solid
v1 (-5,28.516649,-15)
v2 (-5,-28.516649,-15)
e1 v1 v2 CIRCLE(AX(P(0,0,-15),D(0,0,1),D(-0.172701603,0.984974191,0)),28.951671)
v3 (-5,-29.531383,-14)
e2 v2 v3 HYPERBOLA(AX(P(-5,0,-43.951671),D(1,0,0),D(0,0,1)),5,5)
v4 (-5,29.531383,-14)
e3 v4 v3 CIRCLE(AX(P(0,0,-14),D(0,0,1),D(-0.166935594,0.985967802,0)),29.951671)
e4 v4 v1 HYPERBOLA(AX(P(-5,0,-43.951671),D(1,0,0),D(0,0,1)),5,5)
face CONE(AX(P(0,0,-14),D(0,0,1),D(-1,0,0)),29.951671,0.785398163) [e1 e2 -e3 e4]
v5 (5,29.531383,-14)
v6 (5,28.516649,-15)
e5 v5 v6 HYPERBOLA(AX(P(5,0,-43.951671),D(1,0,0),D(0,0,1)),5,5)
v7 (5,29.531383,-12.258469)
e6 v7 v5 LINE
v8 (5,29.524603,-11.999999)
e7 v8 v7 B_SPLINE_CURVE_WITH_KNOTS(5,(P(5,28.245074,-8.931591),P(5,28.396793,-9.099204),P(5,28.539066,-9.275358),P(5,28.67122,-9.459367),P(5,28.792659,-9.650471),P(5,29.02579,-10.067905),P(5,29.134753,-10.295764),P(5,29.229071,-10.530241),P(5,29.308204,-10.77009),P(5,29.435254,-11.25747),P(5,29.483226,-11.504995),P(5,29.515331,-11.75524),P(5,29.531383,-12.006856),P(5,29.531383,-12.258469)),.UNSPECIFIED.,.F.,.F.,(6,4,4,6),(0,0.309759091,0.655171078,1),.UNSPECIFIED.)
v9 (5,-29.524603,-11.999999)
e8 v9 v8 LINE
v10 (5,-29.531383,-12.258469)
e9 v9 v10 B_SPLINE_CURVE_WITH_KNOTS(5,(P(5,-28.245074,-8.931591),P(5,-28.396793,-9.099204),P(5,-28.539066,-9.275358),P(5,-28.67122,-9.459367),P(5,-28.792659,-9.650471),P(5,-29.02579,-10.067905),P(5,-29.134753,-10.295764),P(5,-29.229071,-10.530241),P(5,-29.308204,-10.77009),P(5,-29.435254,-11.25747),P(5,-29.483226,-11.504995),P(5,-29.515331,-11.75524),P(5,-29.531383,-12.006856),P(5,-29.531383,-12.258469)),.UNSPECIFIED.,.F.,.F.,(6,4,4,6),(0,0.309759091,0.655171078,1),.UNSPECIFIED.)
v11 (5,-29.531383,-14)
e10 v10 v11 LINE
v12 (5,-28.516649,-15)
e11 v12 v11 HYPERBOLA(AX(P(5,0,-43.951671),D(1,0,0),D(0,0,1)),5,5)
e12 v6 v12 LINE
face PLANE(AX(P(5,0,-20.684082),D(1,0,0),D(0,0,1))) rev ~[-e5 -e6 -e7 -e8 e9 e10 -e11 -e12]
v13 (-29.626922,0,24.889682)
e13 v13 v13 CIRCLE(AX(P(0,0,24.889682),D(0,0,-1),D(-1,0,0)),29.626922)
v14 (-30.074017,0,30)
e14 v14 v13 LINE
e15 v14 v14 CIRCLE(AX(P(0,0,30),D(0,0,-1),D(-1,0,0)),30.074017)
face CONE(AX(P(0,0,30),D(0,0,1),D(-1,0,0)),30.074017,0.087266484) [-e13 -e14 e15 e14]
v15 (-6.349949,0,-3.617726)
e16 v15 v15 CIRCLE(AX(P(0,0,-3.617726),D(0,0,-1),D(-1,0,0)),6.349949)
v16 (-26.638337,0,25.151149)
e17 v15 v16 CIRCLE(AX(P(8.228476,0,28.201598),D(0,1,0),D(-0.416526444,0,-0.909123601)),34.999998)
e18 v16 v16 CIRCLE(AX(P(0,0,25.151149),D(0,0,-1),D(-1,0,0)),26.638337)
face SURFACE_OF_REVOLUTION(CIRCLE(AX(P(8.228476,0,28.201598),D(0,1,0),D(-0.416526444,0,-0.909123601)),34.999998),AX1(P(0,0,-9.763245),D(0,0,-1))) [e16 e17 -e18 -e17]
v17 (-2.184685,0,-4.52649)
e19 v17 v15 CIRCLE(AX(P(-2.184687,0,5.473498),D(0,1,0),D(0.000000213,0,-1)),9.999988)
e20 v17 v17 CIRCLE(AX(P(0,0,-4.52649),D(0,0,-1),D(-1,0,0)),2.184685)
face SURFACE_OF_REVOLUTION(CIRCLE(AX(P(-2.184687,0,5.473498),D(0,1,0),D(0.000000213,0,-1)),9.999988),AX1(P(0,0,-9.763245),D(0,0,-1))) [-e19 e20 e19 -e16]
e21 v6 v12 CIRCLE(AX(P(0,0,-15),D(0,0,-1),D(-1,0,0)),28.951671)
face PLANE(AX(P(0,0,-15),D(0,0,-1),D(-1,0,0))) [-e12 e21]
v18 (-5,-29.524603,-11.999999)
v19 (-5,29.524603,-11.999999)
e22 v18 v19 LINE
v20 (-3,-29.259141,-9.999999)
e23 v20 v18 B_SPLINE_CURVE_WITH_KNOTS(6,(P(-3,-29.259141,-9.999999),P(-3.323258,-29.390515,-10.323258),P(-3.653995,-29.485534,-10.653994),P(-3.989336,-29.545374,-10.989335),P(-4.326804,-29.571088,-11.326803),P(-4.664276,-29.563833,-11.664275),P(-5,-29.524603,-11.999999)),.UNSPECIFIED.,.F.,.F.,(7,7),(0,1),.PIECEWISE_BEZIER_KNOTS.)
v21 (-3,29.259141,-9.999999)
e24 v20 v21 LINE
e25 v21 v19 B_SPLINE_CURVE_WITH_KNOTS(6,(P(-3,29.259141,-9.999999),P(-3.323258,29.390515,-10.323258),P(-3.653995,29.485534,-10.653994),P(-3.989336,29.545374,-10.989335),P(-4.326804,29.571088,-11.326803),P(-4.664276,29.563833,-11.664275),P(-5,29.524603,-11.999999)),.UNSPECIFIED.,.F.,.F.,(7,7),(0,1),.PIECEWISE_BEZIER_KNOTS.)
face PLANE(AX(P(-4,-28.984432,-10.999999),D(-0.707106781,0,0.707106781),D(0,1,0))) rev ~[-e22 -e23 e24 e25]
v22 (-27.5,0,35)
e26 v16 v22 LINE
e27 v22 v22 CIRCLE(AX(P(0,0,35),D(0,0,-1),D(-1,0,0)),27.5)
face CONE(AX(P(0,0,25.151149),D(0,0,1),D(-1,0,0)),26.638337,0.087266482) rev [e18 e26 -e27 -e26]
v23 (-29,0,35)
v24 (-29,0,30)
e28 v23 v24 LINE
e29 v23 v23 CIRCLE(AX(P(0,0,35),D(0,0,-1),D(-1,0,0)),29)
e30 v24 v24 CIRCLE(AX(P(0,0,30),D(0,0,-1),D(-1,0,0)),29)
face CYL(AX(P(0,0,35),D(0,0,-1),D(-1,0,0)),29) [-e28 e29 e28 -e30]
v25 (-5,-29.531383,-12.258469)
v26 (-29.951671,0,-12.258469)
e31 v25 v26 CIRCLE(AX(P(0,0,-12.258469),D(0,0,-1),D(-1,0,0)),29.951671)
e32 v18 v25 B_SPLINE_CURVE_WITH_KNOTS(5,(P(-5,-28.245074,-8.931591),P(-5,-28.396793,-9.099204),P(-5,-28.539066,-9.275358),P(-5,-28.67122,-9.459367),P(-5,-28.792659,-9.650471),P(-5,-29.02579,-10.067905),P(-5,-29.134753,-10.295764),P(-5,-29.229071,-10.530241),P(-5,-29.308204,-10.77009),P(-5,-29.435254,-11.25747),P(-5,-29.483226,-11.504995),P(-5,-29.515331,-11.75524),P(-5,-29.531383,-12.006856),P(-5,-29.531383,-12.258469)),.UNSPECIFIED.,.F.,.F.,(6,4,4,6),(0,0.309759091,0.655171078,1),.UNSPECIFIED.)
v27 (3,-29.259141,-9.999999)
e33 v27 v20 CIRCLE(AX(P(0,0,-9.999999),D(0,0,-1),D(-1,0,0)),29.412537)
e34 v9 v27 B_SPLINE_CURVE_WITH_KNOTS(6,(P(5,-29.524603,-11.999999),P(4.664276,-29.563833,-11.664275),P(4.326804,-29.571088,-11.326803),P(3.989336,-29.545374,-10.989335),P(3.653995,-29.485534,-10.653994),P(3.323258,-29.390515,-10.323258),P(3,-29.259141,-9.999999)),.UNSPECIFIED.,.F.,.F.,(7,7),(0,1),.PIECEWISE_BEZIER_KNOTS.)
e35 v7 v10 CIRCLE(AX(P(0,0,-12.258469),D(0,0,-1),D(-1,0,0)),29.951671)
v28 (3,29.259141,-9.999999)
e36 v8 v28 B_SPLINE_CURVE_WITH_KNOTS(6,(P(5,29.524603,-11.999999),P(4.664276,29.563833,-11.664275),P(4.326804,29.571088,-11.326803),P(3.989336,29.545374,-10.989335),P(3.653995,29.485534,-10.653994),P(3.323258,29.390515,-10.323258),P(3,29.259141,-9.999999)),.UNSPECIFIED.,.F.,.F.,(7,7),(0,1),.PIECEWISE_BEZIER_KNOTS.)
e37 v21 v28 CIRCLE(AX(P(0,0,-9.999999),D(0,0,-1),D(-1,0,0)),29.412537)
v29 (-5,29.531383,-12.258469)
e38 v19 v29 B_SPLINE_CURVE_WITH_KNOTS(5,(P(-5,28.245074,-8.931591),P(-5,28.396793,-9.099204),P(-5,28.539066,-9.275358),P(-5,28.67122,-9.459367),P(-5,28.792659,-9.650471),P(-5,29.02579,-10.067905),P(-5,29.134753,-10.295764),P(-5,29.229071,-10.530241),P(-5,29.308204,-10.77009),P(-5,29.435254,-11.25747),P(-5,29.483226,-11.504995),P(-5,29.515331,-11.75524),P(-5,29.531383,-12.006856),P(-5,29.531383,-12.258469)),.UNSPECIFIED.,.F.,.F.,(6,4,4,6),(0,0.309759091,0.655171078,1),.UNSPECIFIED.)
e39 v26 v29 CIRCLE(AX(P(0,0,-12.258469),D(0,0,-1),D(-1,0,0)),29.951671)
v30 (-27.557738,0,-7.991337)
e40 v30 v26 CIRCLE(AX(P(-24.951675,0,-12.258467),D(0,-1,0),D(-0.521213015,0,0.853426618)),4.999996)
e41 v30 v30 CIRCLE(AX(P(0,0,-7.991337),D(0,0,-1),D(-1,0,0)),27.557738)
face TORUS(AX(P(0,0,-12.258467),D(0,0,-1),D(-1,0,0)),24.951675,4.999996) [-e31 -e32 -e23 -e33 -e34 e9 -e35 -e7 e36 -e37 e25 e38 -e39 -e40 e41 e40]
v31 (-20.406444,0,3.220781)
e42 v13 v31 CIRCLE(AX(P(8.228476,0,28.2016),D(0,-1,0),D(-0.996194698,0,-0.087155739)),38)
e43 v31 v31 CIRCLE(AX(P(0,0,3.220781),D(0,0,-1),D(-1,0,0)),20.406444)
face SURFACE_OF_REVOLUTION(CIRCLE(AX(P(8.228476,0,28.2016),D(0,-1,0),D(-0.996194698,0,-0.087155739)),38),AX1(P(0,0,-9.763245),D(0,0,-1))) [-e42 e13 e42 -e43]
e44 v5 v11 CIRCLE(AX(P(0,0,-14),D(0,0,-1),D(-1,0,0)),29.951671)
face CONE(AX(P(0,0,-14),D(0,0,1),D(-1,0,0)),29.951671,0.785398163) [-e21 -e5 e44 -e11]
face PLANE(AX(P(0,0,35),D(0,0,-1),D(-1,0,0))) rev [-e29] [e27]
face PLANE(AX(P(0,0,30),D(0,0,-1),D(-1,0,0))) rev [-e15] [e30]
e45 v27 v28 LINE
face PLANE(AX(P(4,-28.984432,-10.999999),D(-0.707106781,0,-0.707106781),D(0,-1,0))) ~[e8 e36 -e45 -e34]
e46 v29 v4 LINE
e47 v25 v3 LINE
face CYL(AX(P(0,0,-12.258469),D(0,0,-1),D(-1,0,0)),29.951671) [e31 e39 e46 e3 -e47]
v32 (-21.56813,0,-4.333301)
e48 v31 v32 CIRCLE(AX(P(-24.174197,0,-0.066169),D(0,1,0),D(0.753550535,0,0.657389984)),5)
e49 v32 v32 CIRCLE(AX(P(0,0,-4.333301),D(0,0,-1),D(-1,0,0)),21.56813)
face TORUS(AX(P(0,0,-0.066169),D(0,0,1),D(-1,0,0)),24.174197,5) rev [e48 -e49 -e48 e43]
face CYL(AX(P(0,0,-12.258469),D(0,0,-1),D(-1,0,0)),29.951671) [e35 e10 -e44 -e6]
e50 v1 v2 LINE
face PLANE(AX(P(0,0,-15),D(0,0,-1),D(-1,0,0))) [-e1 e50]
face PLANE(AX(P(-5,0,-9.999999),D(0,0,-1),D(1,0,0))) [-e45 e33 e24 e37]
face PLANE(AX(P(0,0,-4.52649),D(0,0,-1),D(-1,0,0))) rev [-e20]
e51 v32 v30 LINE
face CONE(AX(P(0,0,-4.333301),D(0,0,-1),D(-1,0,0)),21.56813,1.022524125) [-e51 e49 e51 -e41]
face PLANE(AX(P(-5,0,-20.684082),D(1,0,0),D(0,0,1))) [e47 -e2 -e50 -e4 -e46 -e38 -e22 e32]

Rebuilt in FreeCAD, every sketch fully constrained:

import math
import FreeCAD as App
import Part
import Sketcher
Q = App.Units.Quantity


def edges_at(feature, points):
    """Names of the edges that pass closest to the given points."""
    edges = feature.Shape.Edges
    near = lambda p: min(range(len(edges)), key=lambda i: edges[i].distToShape(Part.Vertex(*p))[0])
    return sorted({f"Edge{near(p) + 1}" for p in points})


def add_polygon(sketch, points):
    """Adds a closed chain of lines whose ends are joined by coincident constraints."""
    first, n = sketch.GeometryCount, len(points)
    for a, b in zip(points, points[1:] + points[:1]):
        sketch.addGeometry(Part.LineSegment(App.Vector(*a, 0), App.Vector(*b, 0)), False)
    for i in range(n):
        sketch.addConstraint(Sketcher.Constraint("Coincident", first + i, 2, first + (i + 1) % n, 1))

doc = App.newDocument("Part")
params = doc.addObject("Spreadsheet::Sheet", "Params")
for row, (alias, value) in enumerate([
    ("sketch1_radius", "34.999998 mm"),
    ("sketch1_radius2", "38 mm"),
    ("sketch1_radius3", "5 mm"),
    ("sketch1_height", "5 mm"),
    ("sketch1_width", "1.5 mm"),
    ("revolution_angle", "360 deg"),
    ("sketch2_width", "10 mm"),
    ("pocket1_length", "81 mm"),
    ("chamfer_size", "2 mm"),
], start=1):
    params.set(f"A{row}", alias)
    params.set(f"B{row}", "=" + value)
    params.setAlias(f"B{row}", alias)

body = doc.addObject("PartDesign::Body", "Body")

sketch1 = doc.addObject("Sketcher::SketchObject", "Sketch")
body.addObject(sketch1)
sketch1.AttachmentSupport = (doc.XZ_Plane, [""])
sketch1.MapMode = "FlatFace"
sketch1.addGeometry([
    Part.ArcOfCircle(Part.Circle(App.Vector(8.228476, 28.201598, 0), App.Vector(0, 0, 1), 34.999998), math.radians(-175.000002), math.radians(-114.615481)),
    Part.LineSegment(App.Vector(-26.638337, 25.151149, 0), App.Vector(-27.5, 35, 0)),
    Part.LineSegment(App.Vector(-27.5, 35, 0), App.Vector(-29, 35, 0)),
    Part.LineSegment(App.Vector(-29, 35, 0), App.Vector(-29, 30, 0)),
    Part.LineSegment(App.Vector(-29, 30, 0), App.Vector(-30.074017, 30, 0)),
    Part.LineSegment(App.Vector(-30.074017, 30, 0), App.Vector(-29.626922, 24.889682, 0)),
    Part.ArcOfCircle(Part.Circle(App.Vector(8.228476, 28.2016, 0), App.Vector(0, 0, 1), 38), math.radians(-175), math.radians(-138.89888)),
    Part.ArcOfCircle(Part.Circle(App.Vector(-24.174197, -0.066169, 0), App.Vector(0, 0, 1), 5), math.radians(-58.586325), math.radians(41.101121)),
    Part.LineSegment(App.Vector(-21.56813, -4.333301, 0), App.Vector(-27.557738, -7.991337, 0)),
    Part.ArcOfCircle(Part.Circle(App.Vector(-24.951675, -12.258467, 0), App.Vector(0, 0, 1), 4.999996), math.radians(121.413653), math.radians(180.000027)),
    Part.LineSegment(App.Vector(-29.951671, -12.258469, 0), App.Vector(-29.951671, -14, 0)),
    Part.LineSegment(App.Vector(-29.951671, -14, 0), App.Vector(-28.951671, -15, 0)),
    Part.LineSegment(App.Vector(-28.951671, -15, 0), App.Vector(0, -15, 0)),
    Part.LineSegment(App.Vector(0, -15, 0), App.Vector(0, -4.52649, 0)),
    Part.LineSegment(App.Vector(0, -4.52649, 0), App.Vector(-2.184685, -4.52649, 0)),
    Part.ArcOfCircle(Part.Circle(App.Vector(-2.184687, 5.473498, 0), App.Vector(0, 0, 1), 9.999988), math.radians(-114.615496), math.radians(-89.999988)),
], False)
sketch1.addConstraint([
    Sketcher.Constraint("Tangent", 0, 1, 1, 1),
    Sketcher.Constraint("Coincident", 1, 2, 2, 1),
    Sketcher.Constraint("Coincident", 2, 2, 3, 1),
    Sketcher.Constraint("Coincident", 3, 2, 4, 1),
    Sketcher.Constraint("Coincident", 4, 2, 5, 1),
    Sketcher.Constraint("Tangent", 5, 2, 6, 1),
    Sketcher.Constraint("Tangent", 6, 2, 7, 2),
    Sketcher.Constraint("Tangent", 7, 1, 8, 1),
    Sketcher.Constraint("Tangent", 8, 2, 9, 1),
    Sketcher.Constraint("Tangent", 9, 2, 10, 1),
    Sketcher.Constraint("Coincident", 10, 2, 11, 1),
    Sketcher.Constraint("Coincident", 11, 2, 12, 1),
    Sketcher.Constraint("Coincident", 12, 2, 13, 1),
    Sketcher.Constraint("Coincident", 13, 2, 14, 1),
    Sketcher.Constraint("Tangent", 14, 2, 15, 2),
    Sketcher.Constraint("Tangent", 15, 1, 0, 2),
    Sketcher.Constraint("Horizontal", 2),
    Sketcher.Constraint("Vertical", 3),
    Sketcher.Constraint("Horizontal", 4),
    Sketcher.Constraint("Vertical", 10),
    Sketcher.Constraint("Horizontal", 12),
    Sketcher.Constraint("Vertical", 13),
    Sketcher.Constraint("Horizontal", 14),
    Sketcher.Constraint("Coincident", 6, 3, 0, 3),
    Sketcher.Constraint("PointOnObject", 12, 2, -2),
    Sketcher.Constraint("Parallel", 1, 5),
    Sketcher.Constraint("Radius", 0, 34.999998),
    Sketcher.Constraint("Radius", 6, 38.0),
    Sketcher.Constraint("Radius", 7, 5.0),
    Sketcher.Constraint("DistanceY", 3, 2, 3, 1, 5.0),
    Sketcher.Constraint("Angle", 1, Q("95.000001 deg")),
    Sketcher.Constraint("Angle", 11, Q("-45 deg")),
    Sketcher.Constraint("DistanceX", 2, 2, 2, 1, 1.5),
    Sketcher.Constraint("DistanceY", -1, 1, 1, 2, 35.0),
    Sketcher.Constraint("DistanceX", 2, 2, -1, 1, 29.0),
    Sketcher.Constraint("DistanceY", 10, 2, -1, 1, 14.0),
    Sketcher.Constraint("DistanceY", 11, 2, -1, 1, 15.0),
    Sketcher.Constraint("Radius", 15, 9.999988),
    Sketcher.Constraint("Radius", 9, 4.999996),
    Sketcher.Constraint("DistanceX", 12, 1, 12, 2, 28.951671),
    Sketcher.Constraint("DistanceY", 10, 2, 10, 1, 1.741531),
    Sketcher.Constraint("DistanceY", 13, 1, 13, 2, 10.47351),
    Sketcher.Constraint("DistanceY", -1, 1, 0, 3, 28.201598),
    Sketcher.Constraint("DistanceY", 7, 1, -1, 1, 4.333301),
])
sketch1.setExpression("Constraints[26]", "Params.sketch1_radius")
sketch1.setExpression("Constraints[27]", "Params.sketch1_radius2")
sketch1.setExpression("Constraints[28]", "Params.sketch1_radius3")
sketch1.setExpression("Constraints[29]", "Params.sketch1_height")
sketch1.setExpression("Constraints[32]", "Params.sketch1_width")
revolution = doc.addObject("PartDesign::Revolution", "Revolution")
body.addObject(revolution)
revolution.Profile = sketch1
revolution.ReferenceAxis = (sketch1, ["V_Axis"])
revolution.setExpression("Angle", "Params.revolution_angle")

sketch2 = doc.addObject("Sketcher::SketchObject", "Sketch001")
body.addObject(sketch2)
sketch2.AttachmentSupport = (doc.XZ_Plane, [""])
sketch2.MapMode = "FlatFace"
add_polygon(sketch2, [(-5, -9.999999), (-5, -20.684082), (5, -20.684082), (5, -9.999999)])
sketch2.addConstraint([
    Sketcher.Constraint("Vertical", 0),
    Sketcher.Constraint("Horizontal", 1),
    Sketcher.Constraint("Vertical", 2),
    Sketcher.Constraint("Horizontal", 3),
    Sketcher.Constraint("DistanceX", 1, 1, 1, 2, 10.0),
    Sketcher.Constraint("DistanceX", 0, 2, -1, 1, 5.0),
    Sketcher.Constraint("DistanceY", 2, 2, -1, 1, 9.999999),
    Sketcher.Constraint("DistanceY", 0, 2, 0, 1, 10.684083),
])
sketch2.setExpression("Constraints[8]", "Params.sketch2_width")
pocket1 = doc.addObject("PartDesign::Pocket", "Pocket")
body.addObject(pocket1)
pocket1.Profile = sketch2
pocket1.setExpression("Length", "Params.pocket1_length")
pocket1.Midplane = True
doc.recompute()

chamfer = doc.addObject("PartDesign::Chamfer", "Chamfer")
body.addObject(chamfer)
chamfer.Base = (pocket1, edges_at(pocket1, [(-5, 0, -10), (5, 0, -10)]))
chamfer.setExpression("Size", "Params.chamfer_size")

doc.recompute()
